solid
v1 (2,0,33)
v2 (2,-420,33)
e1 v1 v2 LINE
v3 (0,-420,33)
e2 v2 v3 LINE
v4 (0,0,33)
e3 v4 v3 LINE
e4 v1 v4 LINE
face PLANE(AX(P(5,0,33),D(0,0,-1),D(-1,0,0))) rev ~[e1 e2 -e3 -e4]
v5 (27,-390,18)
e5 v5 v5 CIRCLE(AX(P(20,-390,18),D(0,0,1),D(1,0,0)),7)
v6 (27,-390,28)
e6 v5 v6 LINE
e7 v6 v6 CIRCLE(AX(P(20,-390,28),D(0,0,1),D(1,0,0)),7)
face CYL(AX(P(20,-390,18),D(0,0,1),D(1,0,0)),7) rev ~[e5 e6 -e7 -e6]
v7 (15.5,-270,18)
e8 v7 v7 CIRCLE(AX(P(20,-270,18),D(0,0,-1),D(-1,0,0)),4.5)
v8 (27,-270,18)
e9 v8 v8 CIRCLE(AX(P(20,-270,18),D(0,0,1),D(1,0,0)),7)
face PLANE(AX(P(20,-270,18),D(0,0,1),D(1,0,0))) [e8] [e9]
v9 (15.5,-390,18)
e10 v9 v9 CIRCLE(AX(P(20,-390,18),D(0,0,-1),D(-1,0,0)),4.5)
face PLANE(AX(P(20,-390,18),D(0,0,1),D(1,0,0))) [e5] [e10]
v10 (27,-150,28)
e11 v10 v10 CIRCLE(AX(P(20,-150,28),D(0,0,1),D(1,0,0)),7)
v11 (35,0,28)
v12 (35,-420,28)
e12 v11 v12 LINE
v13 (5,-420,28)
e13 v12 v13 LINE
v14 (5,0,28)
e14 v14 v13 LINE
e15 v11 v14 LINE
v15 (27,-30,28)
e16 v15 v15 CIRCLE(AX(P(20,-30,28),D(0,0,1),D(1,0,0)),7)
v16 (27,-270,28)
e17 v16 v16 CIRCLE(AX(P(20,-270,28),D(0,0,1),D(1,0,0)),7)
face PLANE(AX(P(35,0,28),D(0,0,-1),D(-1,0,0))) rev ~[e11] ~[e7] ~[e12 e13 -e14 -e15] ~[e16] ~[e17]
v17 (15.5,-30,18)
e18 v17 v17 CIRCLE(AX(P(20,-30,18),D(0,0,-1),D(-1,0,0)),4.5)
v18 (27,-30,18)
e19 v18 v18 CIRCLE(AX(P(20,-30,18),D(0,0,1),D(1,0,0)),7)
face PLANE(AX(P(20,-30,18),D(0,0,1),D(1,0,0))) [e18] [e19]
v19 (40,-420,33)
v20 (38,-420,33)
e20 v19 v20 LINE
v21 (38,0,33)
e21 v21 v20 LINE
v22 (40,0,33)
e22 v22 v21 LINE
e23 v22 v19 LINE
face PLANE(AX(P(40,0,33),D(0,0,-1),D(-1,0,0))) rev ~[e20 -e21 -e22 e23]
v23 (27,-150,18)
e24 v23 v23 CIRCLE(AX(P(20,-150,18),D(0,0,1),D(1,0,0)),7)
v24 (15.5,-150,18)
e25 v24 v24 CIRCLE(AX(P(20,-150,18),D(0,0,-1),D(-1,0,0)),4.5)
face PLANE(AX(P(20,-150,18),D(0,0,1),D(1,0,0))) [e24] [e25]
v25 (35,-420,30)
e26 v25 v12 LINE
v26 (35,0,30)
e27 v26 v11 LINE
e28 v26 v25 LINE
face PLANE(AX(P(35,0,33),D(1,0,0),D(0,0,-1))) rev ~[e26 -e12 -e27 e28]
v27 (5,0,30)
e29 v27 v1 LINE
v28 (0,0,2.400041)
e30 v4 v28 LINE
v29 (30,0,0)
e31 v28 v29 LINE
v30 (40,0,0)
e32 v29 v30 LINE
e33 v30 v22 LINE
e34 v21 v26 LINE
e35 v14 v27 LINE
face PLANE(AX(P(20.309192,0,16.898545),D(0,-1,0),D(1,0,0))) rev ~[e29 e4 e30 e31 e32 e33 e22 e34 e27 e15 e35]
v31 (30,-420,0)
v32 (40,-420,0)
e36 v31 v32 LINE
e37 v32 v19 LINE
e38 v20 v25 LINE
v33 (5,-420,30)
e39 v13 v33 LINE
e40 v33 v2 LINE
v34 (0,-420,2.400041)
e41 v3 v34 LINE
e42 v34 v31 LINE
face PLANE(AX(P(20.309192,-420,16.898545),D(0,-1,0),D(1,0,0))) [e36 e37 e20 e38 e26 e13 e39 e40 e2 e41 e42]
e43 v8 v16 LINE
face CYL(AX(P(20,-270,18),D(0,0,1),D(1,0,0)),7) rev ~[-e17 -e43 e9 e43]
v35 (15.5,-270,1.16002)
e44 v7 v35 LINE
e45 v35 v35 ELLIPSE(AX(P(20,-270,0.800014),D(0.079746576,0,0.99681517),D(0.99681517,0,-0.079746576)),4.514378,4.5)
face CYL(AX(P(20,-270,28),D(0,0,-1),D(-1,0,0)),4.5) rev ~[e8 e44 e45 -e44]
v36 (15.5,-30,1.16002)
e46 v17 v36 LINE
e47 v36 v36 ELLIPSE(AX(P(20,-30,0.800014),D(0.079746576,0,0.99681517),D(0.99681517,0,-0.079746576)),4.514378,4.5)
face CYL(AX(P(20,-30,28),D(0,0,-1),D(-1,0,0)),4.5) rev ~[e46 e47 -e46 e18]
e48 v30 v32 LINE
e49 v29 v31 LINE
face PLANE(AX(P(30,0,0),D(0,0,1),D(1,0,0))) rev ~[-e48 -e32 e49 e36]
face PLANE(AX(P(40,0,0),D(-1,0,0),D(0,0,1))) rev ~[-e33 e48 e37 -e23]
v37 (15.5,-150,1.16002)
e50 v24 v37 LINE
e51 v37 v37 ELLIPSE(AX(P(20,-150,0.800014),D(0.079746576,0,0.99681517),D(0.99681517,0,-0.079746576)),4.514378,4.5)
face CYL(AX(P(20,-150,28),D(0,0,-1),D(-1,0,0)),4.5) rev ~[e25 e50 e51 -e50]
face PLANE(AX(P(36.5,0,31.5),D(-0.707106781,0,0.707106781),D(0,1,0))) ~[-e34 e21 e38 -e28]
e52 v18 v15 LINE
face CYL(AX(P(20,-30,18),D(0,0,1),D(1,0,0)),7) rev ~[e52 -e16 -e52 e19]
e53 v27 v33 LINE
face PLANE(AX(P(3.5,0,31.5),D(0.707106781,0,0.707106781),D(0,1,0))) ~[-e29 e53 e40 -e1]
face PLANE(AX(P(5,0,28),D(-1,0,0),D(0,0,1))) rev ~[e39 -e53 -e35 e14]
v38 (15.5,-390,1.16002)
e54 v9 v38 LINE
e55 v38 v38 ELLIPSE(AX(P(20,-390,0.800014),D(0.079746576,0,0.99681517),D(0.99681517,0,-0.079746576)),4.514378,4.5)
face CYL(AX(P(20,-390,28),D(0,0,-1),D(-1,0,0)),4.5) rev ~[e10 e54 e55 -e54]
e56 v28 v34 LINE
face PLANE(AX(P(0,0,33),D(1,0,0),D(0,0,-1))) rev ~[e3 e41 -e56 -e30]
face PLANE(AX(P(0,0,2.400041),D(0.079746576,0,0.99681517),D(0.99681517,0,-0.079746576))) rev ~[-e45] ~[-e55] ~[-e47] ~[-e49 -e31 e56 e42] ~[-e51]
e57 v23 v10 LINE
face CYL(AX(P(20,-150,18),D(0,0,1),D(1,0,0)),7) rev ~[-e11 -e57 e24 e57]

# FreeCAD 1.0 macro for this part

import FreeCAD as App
import Part
import Sketcher
from FreeCAD import Vector


def edges_at(feature, points):
    """Names of the edges that pass closest to the given points."""
    edges = feature.Shape.Edges
    near = lambda p: min(range(len(edges)), key=lambda i: edges[i].distToShape(Part.Vertex(*p))[0])
    return sorted({f"Edge{near(p) + 1}" for p in points})

doc = App.newDocument("Part")
body = doc.addObject("PartDesign::Body", "Body")

# Sketch on XZ plane
sketch1 = body.newObject("Sketcher::SketchObject", "Sketch")
sketch1.AttachmentSupport = (doc.getObject("XZ_Plane"), [""])
sketch1.MapMode = "FlatFace"
sketch1.addGeometry([
    Part.LineSegment(Vector(0, 2, 0), Vector(30, 0, 0)),  # 0
    Part.LineSegment(Vector(30, 0, 0), Vector(40, 0, 0)),  # 1
    Part.LineSegment(Vector(40, 0, 0), Vector(40, 33, 0)),  # 2
    Part.LineSegment(Vector(40, 33, 0), Vector(35, 33, 0)),  # 3
    Part.LineSegment(Vector(35, 33, 0), Vector(35, 28, 0)),  # 4
    Part.LineSegment(Vector(35, 28, 0), Vector(5, 28, 0)),  # 5
    Part.LineSegment(Vector(5, 28, 0), Vector(5, 33, 0)),  # 6
    Part.LineSegment(Vector(5, 33, 0), Vector(0, 33, 0)),  # 7
    Part.LineSegment(Vector(0, 33, 0), Vector(0, 2, 0)),  # 8
], False)
sketch1.addConstraint([
    Sketcher.Constraint("Coincident", 0, 2, 1, 1),
    Sketcher.Constraint("Coincident", 1, 2, 2, 1),
    Sketcher.Constraint("Coincident", 2, 2, 3, 1),
    Sketcher.Constraint("Coincident", 3, 2, 4, 1),
    Sketcher.Constraint("Coincident", 4, 2, 5, 1),
    Sketcher.Constraint("Coincident", 5, 2, 6, 1),
    Sketcher.Constraint("Coincident", 6, 2, 7, 1),
    Sketcher.Constraint("Coincident", 7, 2, 8, 1),
    Sketcher.Constraint("Coincident", 8, 2, 0, 1),
    Sketcher.Constraint("Horizontal", 1),
    Sketcher.Constraint("Vertical", 2),
    Sketcher.Constraint("Horizontal", 3),
    Sketcher.Constraint("Vertical", 4),
    Sketcher.Constraint("Horizontal", 5),
    Sketcher.Constraint("Vertical", 6),
    Sketcher.Constraint("Horizontal", 7),
    Sketcher.Constraint("Vertical", 8),
    Sketcher.Constraint("PointOnObject", 0, 2, -1),
    Sketcher.Constraint("PointOnObject", 7, 2, -2),
    Sketcher.Constraint("Horizontal", 3, 2, 6, 2),
    Sketcher.Constraint("Equal", 3, 7),
    Sketcher.Constraint("Equal", 7, 4),
    Sketcher.Constraint("DistanceX", 1, 1, 1, 2, 10.0),
    Sketcher.Constraint("DistanceX", 3, 2, 3, 1, 5.0),
    Sketcher.Constraint("DistanceX", 5, 2, 5, 1, 30.0),
    Sketcher.Constraint("DistanceY", 2, 1, 2, 2, 33.0),
    Sketcher.Constraint("DistanceY", 8, 2, 8, 1, 30.599959),
])
pad1 = body.newObject("PartDesign::Pad", "Pad")
pad1.Profile = sketch1
pad1.Length = 420
doc.recompute()

chamfer = body.newObject("PartDesign::Chamfer", "Chamfer")
chamfer.Base = (pad1, edges_at(pad1, [(5, -210, 33), (35, -210, 33)]))
chamfer.Size = 3

# Sketch on XY plane
sketch2 = body.newObject("Sketcher::SketchObject", "Sketch001")
sketch2.AttachmentSupport = (doc.getObject("XY_Plane"), [""])
sketch2.MapMode = "FlatFace"
sketch2.AttachmentOffset = App.Placement(Vector(0, 0, 28), App.Rotation())
sketch2.addGeometry([
    Part.Circle(Vector(20, -390, 0), Vector(0, 0, 1), 4.5),
    Part.Circle(Vector(20, -270, 0), Vector(0, 0, 1), 4.5),
    Part.Circle(Vector(20, -150, 0), Vector(0, 0, 1), 4.5),
    Part.Circle(Vector(20, -30, 0), Vector(0, 0, 1), 4.5),
], False)
sketch2.addConstraint([
    Sketcher.Constraint("Equal", 0, 1),
    Sketcher.Constraint("Equal", 1, 2),
    Sketcher.Constraint("Equal", 2, 3),
    Sketcher.Constraint("Vertical", 0, 3, 1, 3),
    Sketcher.Constraint("Vertical", 1, 3, 2, 3),
    Sketcher.Constraint("Vertical", 2, 3, 3, 3),
    Sketcher.Constraint("Diameter", 0, 9.0),
    Sketcher.Constraint("DistanceX", -1, 1, 0, 3, 20.0),
    Sketcher.Constraint("DistanceY", 0, 3, -1, 1, 390.0),
    Sketcher.Constraint("DistanceY", 1, 3, -1, 1, 270.0),
    Sketcher.Constraint("DistanceY", 2, 3, -1, 1, 150.0),
    Sketcher.Constraint("DistanceY", 3, 3, -1, 1, 30.0),
])
doc.recompute()
hole = body.newObject("PartDesign::Hole", "Hole")
hole.Profile = sketch2
hole.ThreadType = "None"
hole.Diameter = 9
hole.DepthType = "ThroughAll"
hole.HoleCutType = "Counterbore"
hole.HoleCutDiameter = 14
hole.HoleCutDepth = 10

doc.recompute()
